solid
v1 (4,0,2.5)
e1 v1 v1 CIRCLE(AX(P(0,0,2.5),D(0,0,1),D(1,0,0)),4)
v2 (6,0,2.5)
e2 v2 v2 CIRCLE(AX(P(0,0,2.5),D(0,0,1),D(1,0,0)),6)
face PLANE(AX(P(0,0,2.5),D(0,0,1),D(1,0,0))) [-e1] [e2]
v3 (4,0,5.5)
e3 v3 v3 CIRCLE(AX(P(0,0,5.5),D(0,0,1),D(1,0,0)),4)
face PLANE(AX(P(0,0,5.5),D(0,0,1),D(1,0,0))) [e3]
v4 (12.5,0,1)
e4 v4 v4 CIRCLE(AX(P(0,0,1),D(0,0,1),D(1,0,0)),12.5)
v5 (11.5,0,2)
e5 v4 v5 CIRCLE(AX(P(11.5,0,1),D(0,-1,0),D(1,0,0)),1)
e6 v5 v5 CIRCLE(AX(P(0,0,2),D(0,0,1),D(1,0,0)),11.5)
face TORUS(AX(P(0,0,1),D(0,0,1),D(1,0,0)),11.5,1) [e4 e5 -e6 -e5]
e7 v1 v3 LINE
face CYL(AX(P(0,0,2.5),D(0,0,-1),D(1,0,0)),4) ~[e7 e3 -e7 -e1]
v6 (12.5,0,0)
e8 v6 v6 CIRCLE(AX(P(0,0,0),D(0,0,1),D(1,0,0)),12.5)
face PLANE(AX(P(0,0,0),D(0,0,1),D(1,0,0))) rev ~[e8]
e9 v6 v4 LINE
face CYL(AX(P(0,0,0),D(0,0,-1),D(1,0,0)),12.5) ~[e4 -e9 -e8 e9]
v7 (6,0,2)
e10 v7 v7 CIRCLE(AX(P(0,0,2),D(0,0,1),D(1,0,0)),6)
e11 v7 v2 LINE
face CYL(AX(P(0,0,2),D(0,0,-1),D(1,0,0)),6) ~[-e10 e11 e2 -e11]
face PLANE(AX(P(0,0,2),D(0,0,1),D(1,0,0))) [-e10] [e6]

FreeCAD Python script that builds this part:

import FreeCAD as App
import Part
import Sketcher


def edges_at(feature, points):
    """Names of the edges that pass closest to the given points."""
    edges = feature.Shape.Edges
    near = lambda p: min(range(len(edges)), key=lambda i: edges[i].distToShape(Part.Vertex(*p))[0])
    return sorted({f"Edge{near(p) + 1}" for p in points})

doc = App.newDocument("Part")
params = doc.addObject("Spreadsheet::Sheet", "Params")
for row, (alias, value) in enumerate([
    ("sketch1_diameter", "25 mm"),
    ("pad1_length", "2 mm"),
    ("fillet_radius", "1 mm"),
    ("sketch2_diameter", "12 mm"),
    ("pad2_length", "0.5 mm"),
    ("sketch3_diameter", "8 mm"),
    ("pad3_length", "3 mm"),
], start=1):
    params.set(f"A{row}", alias)
    params.set(f"B{row}", "=" + value)
    params.setAlias(f"B{row}", alias)

body = doc.addObject("PartDesign::Body", "Body")

# Sketch on XY plane
sketch1 = body.newObject("Sketcher::SketchObject", "Sketch")
sketch1.AttachmentSupport = (doc.getObject("XY_Plane"), [""])
sketch1.MapMode = "FlatFace"
sketch1.addGeometry(Part.Circle(App.Vector(0, 0, 0), App.Vector(0, 0, 1), 12), False)
sketch1.addConstraint(Sketcher.Constraint("Coincident", 0, 3, -1, 1))
sketch1.addConstraint(Sketcher.Constraint("Diameter", 0, 25.0))
sketch1.setExpression("Constraints[1]", "Params.sketch1_diameter")
pad1 = body.newObject("PartDesign::Pad", "Pad")
pad1.Profile = sketch1
pad1.setExpression("Length", "Params.pad1_length")
doc.recompute()

fillet = body.newObject("PartDesign::Fillet", "Fillet")
fillet.Base = (pad1, edges_at(pad1, [(-12.5, 0, 2)]))
fillet.setExpression("Radius", "Params.fillet_radius")

# Sketch on XY plane
sketch2 = body.newObject("Sketcher::SketchObject", "Sketch001")
sketch2.AttachmentSupport = (doc.getObject("XY_Plane"), [""])
sketch2.MapMode = "FlatFace"
sketch2.AttachmentOffset = App.Placement(App.Vector(0, 0, 2), App.Rotation())
sketch2.addGeometry(Part.Circle(App.Vector(0, 0, 0), App.Vector(0, 0, 1), 6), False)
sketch2.addConstraint(Sketcher.Constraint("Coincident", 0, 3, -1, 1))
sketch2.addConstraint(Sketcher.Constraint("Diameter", 0, 12.0))
sketch2.setExpression("Constraints[1]", "Params.sketch2_diameter")
pad2 = body.newObject("PartDesign::Pad", "Pad001")
pad2.Profile = sketch2
pad2.setExpression("Length", "Params.pad2_length")

# Sketch on XY plane
sketch3 = body.newObject("Sketcher::SketchObject", "Sketch002")
sketch3.AttachmentSupport = (doc.getObject("XY_Plane"), [""])
sketch3.MapMode = "FlatFace"
sketch3.AttachmentOffset = App.Placement(App.Vector(0, 0, 2.5), App.Rotation())
sketch3.addGeometry(Part.Circle(App.Vector(0, 0, 0), App.Vector(0, 0, 1), 4), False)
sketch3.addConstraint(Sketcher.Constraint("Coincident", 0, 3, -1, 1))
sketch3.addConstraint(Sketcher.Constraint("Diameter", 0, 8.0))
sketch3.setExpression("Constraints[1]", "Params.sketch3_diameter")
pad3 = body.newObject("PartDesign::Pad", "Pad002")
pad3.Profile = sketch3
pad3.setExpression("Length", "Params.pad3_length")

doc.recompute()
